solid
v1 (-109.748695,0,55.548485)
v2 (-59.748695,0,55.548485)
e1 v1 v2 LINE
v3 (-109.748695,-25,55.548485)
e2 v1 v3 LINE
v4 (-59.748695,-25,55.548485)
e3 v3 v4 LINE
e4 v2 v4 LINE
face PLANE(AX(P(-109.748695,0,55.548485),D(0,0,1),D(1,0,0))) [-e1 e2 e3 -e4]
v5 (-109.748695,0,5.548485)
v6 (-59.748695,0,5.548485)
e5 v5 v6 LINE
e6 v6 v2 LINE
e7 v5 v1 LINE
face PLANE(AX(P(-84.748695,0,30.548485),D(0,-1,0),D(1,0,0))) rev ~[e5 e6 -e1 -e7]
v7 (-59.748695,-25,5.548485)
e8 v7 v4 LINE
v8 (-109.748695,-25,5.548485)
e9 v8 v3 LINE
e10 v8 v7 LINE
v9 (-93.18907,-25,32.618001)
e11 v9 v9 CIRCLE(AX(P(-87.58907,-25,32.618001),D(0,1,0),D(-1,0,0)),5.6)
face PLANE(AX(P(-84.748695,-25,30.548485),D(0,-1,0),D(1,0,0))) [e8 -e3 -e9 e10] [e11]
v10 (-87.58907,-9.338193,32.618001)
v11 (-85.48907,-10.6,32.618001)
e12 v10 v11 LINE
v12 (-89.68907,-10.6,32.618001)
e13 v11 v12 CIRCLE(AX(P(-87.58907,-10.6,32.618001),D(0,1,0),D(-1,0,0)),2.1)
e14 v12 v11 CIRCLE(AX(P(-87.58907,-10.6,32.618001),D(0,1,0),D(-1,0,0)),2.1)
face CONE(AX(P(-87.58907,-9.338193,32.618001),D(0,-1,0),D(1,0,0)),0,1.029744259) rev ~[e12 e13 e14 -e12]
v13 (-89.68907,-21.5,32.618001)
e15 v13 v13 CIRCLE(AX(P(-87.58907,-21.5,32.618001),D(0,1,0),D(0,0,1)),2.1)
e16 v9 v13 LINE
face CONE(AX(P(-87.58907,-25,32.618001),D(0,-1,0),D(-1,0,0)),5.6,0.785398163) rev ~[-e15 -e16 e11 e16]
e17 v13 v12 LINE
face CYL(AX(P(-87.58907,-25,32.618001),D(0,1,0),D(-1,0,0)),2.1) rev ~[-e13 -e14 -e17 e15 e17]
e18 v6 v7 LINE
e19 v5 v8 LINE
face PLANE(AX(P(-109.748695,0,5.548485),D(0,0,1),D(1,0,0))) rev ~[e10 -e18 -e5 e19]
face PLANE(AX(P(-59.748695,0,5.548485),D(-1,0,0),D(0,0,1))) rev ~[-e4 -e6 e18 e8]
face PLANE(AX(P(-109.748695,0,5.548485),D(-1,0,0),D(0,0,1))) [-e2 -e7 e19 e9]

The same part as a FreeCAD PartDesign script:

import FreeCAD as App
import Part
import Sketcher


def add_polygon(sketch, points):
    """Adds a closed chain of lines whose ends are joined by coincident constraints."""
    first, n = sketch.GeometryCount, len(points)
    for a, b in zip(points, points[1:] + points[:1]):
        sketch.addGeometry(Part.LineSegment(App.Vector(*a, 0), App.Vector(*b, 0)), False)
    for i in range(n):
        sketch.addConstraint(Sketcher.Constraint("Coincident", first + i, 2, first + (i + 1) % n, 1))

doc = App.newDocument("Part")
params = doc.addObject("Spreadsheet::Sheet", "Params")
for row, (alias, value) in enumerate([
    ("sketch1_width", "50 mm"),
    ("pad1_length", "25 mm"),
    ("sketch2_diameter", "4.2 mm"),
    ("hole_diameter", "4.2 mm"),
    ("hole_depth", "14.4 mm"),
    ("hole_csink_diameter", "11.2 mm"),
], start=1):
    params.set(f"A{row}", alias)
    params.set(f"B{row}", "=" + value)
    params.setAlias(f"B{row}", alias)

body = doc.addObject("PartDesign::Body", "Body")

sketch1 = body.newObject("Sketcher::SketchObject", "Sketch")
sketch1.AttachmentSupport = (doc.getObject("XZ_Plane"), [""])
sketch1.MapMode = "FlatFace"
add_polygon(sketch1, [(-110, 56), (-110, 6), (-60, 6), (-60, 56)])
sketch1.addConstraint([
    Sketcher.Constraint("Vertical", 0),
    Sketcher.Constraint("Horizontal", 1),
    Sketcher.Constraint("Vertical", 2),
    Sketcher.Constraint("Horizontal", 3),
    Sketcher.Constraint("Equal", 3, 0),
    Sketcher.Constraint("DistanceX", 1, 1, 1, 2, 50.0),
    Sketcher.Constraint("DistanceX", 0, 2, -1, 1, 109.748695),
    Sketcher.Constraint("DistanceY", -1, 1, 0, 2, 5.548485),
])
sketch1.setExpression("Constraints[9]", "Params.sketch1_width")
pad1 = body.newObject("PartDesign::Pad", "Pad")
pad1.Profile = sketch1
pad1.setExpression("Length", "Params.pad1_length")

sketch2 = body.newObject("Sketcher::SketchObject", "Sketch001")
sketch2.AttachmentSupport = (doc.getObject("XZ_Plane"), [""])
sketch2.MapMode = "FlatFace"
sketch2.AttachmentOffset = App.Placement(App.Vector(0, 0, 25), App.Rotation())
sketch2.addGeometry(Part.Circle(App.Vector(-87.6, 32.6, 0), App.Vector(0, 0, 1), 2.1), False)
sketch2.addConstraint([
    Sketcher.Constraint("Diameter", 0, 4.2),
    Sketcher.Constraint("DistanceY", -1, 1, 0, 3, 32.618001),
    Sketcher.Constraint("DistanceX", 0, 3, -1, 1, 87.58907),
])
sketch2.setExpression("Constraints[0]", "Params.sketch2_diameter")
doc.recompute()
hole = body.newObject("PartDesign::Hole", "Hole")
hole.Profile = sketch2
hole.ThreadType = "None"
hole.setExpression("Diameter", "Params.hole_diameter")
hole.DepthType = "Dimension"
hole.setExpression("Depth", "Params.hole_depth")
hole.DrillPoint = "Angled"
hole.DrillPointAngle = 118
hole.HoleCutType = "Countersink"
hole.setExpression("HoleCutDiameter", "Params.hole_csink_diameter")
hole.HoleCutCountersinkAngle = 90

doc.recompute()
